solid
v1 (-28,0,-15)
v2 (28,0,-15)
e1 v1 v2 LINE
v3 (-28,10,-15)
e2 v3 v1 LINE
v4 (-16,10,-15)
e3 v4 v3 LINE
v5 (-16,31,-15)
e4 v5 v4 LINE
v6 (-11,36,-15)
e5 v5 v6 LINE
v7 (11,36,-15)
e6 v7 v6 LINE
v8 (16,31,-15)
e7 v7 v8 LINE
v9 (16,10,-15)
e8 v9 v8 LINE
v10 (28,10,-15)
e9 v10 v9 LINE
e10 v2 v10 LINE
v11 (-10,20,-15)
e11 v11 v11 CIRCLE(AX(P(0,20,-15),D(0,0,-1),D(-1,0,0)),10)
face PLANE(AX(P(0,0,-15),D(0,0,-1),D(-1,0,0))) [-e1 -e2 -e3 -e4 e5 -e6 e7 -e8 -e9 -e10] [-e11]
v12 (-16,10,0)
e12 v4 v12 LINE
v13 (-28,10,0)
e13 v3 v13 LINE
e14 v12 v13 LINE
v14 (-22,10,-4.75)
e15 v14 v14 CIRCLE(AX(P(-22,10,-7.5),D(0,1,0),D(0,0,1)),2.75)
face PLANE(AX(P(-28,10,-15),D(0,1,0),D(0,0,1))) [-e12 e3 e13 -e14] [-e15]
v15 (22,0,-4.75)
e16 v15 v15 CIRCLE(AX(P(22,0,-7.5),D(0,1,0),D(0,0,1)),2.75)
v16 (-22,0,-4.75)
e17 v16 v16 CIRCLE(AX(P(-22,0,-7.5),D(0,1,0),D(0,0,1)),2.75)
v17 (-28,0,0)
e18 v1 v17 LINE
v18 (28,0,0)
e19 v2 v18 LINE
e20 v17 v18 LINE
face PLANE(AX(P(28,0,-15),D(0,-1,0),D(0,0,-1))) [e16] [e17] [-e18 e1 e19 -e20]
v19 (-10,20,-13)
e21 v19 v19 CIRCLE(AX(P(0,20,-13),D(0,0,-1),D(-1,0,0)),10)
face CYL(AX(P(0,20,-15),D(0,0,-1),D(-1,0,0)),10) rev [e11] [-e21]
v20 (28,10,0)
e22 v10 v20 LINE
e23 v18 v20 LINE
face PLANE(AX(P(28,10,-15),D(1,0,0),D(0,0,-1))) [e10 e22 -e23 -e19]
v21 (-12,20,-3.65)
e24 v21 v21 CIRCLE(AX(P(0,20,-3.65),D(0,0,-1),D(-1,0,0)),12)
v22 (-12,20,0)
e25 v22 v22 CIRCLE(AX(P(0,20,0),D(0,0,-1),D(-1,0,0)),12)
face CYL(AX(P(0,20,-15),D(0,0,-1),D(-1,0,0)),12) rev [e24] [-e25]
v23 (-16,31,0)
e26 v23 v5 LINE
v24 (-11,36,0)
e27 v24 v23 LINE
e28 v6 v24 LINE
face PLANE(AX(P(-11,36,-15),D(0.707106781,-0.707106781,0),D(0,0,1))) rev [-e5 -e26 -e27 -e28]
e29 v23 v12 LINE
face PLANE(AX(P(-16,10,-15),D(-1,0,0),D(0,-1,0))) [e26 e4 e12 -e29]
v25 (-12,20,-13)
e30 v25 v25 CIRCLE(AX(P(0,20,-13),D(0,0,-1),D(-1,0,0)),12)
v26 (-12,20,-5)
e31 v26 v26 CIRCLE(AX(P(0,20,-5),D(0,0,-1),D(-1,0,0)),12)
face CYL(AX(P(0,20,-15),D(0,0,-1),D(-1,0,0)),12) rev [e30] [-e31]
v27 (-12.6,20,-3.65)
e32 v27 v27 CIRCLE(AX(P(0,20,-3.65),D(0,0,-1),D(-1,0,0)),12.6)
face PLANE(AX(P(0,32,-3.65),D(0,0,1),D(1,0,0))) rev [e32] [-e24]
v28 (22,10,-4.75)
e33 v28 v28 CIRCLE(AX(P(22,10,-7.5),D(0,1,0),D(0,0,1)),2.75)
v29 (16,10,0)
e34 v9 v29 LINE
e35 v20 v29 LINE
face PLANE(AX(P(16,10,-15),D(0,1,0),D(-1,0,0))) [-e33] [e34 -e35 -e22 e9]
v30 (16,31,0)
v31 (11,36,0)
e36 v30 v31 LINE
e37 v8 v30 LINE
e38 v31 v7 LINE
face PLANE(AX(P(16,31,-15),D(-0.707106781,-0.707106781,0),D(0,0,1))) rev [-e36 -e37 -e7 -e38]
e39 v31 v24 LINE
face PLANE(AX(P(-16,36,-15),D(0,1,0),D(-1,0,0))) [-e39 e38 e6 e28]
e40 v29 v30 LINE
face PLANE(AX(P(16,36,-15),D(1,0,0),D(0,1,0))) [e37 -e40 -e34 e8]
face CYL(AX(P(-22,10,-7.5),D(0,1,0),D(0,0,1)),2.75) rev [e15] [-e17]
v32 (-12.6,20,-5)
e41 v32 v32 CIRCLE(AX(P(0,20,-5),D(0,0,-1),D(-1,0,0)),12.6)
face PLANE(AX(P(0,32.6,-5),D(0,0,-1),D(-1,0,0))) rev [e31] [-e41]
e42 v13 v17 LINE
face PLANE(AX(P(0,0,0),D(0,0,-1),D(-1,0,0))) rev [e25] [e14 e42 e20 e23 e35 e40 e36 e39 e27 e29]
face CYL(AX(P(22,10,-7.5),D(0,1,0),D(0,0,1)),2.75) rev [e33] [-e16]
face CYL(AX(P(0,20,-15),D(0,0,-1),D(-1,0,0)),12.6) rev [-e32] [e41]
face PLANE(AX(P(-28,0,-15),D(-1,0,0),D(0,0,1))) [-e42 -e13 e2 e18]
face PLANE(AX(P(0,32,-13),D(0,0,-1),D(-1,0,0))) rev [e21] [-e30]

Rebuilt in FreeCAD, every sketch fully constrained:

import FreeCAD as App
import Part
import Sketcher

V = App.Vector
Q = App.Units.Quantity


def edges_at(feature, points):
    """Names of the edges that pass closest to the given points."""
    edges = feature.Shape.Edges
    near = lambda p: min(range(len(edges)), key=lambda i: edges[i].distToShape(Part.Vertex(*p))[0])
    return sorted({f"Edge{near(p) + 1}" for p in points})


def add_polygon(sketch, points):
    """Adds a closed chain of lines whose ends are joined by coincident constraints."""
    first, n = sketch.GeometryCount, len(points)
    for a, b in zip(points, points[1:] + points[:1]):
        sketch.addGeometry(Part.LineSegment(App.Vector(*a, 0), App.Vector(*b, 0)), False)
    for i in range(n):
        sketch.addConstraint(Sketcher.Constraint("Coincident", first + i, 2, first + (i + 1) % n, 1))

doc = App.newDocument("Part")
body = doc.addObject("PartDesign::Body", "Body")

sketch1 = body.newObject("Sketcher::SketchObject", "Sketch")
sketch1.AttachmentSupport = (doc.getObject("XY_Plane"), [""])
sketch1.MapMode = "FlatFace"
add_polygon(sketch1, [(16, 36), (-16, 36), (-16, 10), (-28, 10), (-28, 0), (28, 0), (28, 10), (16, 10)])
sketch1.addConstraint([
    Sketcher.Constraint("Horizontal", 0),
    Sketcher.Constraint("Vertical", 1),
    Sketcher.Constraint("Horizontal", 2),
    Sketcher.Constraint("Vertical", 3),
    Sketcher.Constraint("Horizontal", 4),
    Sketcher.Constraint("Vertical", 5),
    Sketcher.Constraint("Horizontal", 6),
    Sketcher.Constraint("Vertical", 7),
    Sketcher.Constraint("Symmetric", 3, 2, 4, 2, -1, 1),
    Sketcher.Constraint("Symmetric", 1, 2, 6, 2, -2),
    Sketcher.Constraint("DistanceX", 0, 2, 0, 1, Q("32 mm")),
    Sketcher.Constraint("DistanceX", 2, 2, 2, 1, Q("12 mm")),
    Sketcher.Constraint("DistanceY", 1, 2, 1, 1, Q("26 mm")),
    Sketcher.Constraint("DistanceY", 3, 2, 3, 1, Q("10 mm")),
])
pad1 = body.newObject("PartDesign::Pad", "Pad")
pad1.Profile = sketch1
pad1.Length = 15
pad1.Reversed = True

sketch2 = body.newObject("Sketcher::SketchObject", "Sketch001")
sketch2.AttachmentSupport = (doc.getObject("YZ_Plane"), [""])
sketch2.MapMode = "FlatFace"
add_polygon(sketch2, [(32.6, -3.6), (32, -3.6), (32, 0), (20, 0), (20, -15), (30, -15), (30, -13), (32, -13), (32, -5), (32.6, -5)])
sketch2.addGeometry(Part.LineSegment(V(20, -15, 0), V(20, 0, 0)), True)
sketch2.addConstraint([
    Sketcher.Constraint("Horizontal", 0),
    Sketcher.Constraint("Vertical", 1),
    Sketcher.Constraint("Horizontal", 2),
    Sketcher.Constraint("Vertical", 3),
    Sketcher.Constraint("Horizontal", 4),
    Sketcher.Constraint("Vertical", 5),
    Sketcher.Constraint("Horizontal", 6),
    Sketcher.Constraint("Vertical", 7),
    Sketcher.Constraint("Horizontal", 8),
    Sketcher.Constraint("Vertical", 9),
    Sketcher.Constraint("Vertical", 10),
    Sketcher.Constraint("Coincident", 10, 1, 3, 2),
    Sketcher.Constraint("PointOnObject", 1, 2, -1),
    Sketcher.Constraint("PointOnObject", 10, 2, -1),
    Sketcher.Constraint("Vertical", 1, 2, 6, 2),
    Sketcher.Constraint("Equal", 6, 5),
    Sketcher.Constraint("DistanceX", 2, 2, 2, 1, Q("12 mm")),
    Sketcher.Constraint("DistanceX", 4, 1, 4, 2, Q("10 mm")),
    Sketcher.Constraint("DistanceY", 3, 2, 3, 1, Q("15 mm")),
    Sketcher.Constraint("DistanceY", 7, 1, 7, 2, Q("8 mm")),
    Sketcher.Constraint("DistanceX", 0, 2, 0, 1, Q("0.6 mm")),
    Sketcher.Constraint("DistanceX", -1, 1, 0, 2, Q("32 mm")),
    Sketcher.Constraint("DistanceY", 1, 1, 1, 2, Q("3.65 mm")),
])
groove = body.newObject("PartDesign::Groove", "Groove")
groove.Profile = sketch2
groove.ReferenceAxis = (sketch2, ["Axis0"])
groove.Angle = 360

sketch3 = body.newObject("Sketcher::SketchObject", "Sketch002")
sketch3.AttachmentSupport = (doc.getObject("XZ_Plane"), [""])
sketch3.MapMode = "FlatFace"
sketch3.AttachmentOffset = App.Placement(V(0, 0, -10), App.Rotation())
sketch3.addGeometry([
    Part.Circle(V(-22, -7.5, 0), V(0, 0, 1), 2.8),
    Part.Circle(V(22, -7.5, 0), V(0, 0, 1), 2.8),
], False)
sketch3.addConstraint([
    Sketcher.Constraint("Equal", 0, 1),
    Sketcher.Constraint("Symmetric", 0, 3, 1, 3, -2),
    Sketcher.Constraint("Diameter", 0, Q("5.5 mm")),
    Sketcher.Constraint("DistanceX", 0, 3, -1, 1, Q("22 mm")),
    Sketcher.Constraint("DistanceY", 0, 3, -1, 1, Q("7.5 mm")),
])
doc.recompute()
hole = body.newObject("PartDesign::Hole", "Hole")
hole.Profile = sketch3
hole.ThreadType = "None"
hole.Diameter = 5.5
hole.DepthType = "ThroughAll"
hole.Reversed = True
doc.recompute()

chamfer = body.newObject("PartDesign::Chamfer", "Chamfer")
chamfer.Base = (hole, edges_at(hole, [(-16, 36, -7.5), (16, 36, -7.5)]))
chamfer.Size = 5

doc.recompute()
